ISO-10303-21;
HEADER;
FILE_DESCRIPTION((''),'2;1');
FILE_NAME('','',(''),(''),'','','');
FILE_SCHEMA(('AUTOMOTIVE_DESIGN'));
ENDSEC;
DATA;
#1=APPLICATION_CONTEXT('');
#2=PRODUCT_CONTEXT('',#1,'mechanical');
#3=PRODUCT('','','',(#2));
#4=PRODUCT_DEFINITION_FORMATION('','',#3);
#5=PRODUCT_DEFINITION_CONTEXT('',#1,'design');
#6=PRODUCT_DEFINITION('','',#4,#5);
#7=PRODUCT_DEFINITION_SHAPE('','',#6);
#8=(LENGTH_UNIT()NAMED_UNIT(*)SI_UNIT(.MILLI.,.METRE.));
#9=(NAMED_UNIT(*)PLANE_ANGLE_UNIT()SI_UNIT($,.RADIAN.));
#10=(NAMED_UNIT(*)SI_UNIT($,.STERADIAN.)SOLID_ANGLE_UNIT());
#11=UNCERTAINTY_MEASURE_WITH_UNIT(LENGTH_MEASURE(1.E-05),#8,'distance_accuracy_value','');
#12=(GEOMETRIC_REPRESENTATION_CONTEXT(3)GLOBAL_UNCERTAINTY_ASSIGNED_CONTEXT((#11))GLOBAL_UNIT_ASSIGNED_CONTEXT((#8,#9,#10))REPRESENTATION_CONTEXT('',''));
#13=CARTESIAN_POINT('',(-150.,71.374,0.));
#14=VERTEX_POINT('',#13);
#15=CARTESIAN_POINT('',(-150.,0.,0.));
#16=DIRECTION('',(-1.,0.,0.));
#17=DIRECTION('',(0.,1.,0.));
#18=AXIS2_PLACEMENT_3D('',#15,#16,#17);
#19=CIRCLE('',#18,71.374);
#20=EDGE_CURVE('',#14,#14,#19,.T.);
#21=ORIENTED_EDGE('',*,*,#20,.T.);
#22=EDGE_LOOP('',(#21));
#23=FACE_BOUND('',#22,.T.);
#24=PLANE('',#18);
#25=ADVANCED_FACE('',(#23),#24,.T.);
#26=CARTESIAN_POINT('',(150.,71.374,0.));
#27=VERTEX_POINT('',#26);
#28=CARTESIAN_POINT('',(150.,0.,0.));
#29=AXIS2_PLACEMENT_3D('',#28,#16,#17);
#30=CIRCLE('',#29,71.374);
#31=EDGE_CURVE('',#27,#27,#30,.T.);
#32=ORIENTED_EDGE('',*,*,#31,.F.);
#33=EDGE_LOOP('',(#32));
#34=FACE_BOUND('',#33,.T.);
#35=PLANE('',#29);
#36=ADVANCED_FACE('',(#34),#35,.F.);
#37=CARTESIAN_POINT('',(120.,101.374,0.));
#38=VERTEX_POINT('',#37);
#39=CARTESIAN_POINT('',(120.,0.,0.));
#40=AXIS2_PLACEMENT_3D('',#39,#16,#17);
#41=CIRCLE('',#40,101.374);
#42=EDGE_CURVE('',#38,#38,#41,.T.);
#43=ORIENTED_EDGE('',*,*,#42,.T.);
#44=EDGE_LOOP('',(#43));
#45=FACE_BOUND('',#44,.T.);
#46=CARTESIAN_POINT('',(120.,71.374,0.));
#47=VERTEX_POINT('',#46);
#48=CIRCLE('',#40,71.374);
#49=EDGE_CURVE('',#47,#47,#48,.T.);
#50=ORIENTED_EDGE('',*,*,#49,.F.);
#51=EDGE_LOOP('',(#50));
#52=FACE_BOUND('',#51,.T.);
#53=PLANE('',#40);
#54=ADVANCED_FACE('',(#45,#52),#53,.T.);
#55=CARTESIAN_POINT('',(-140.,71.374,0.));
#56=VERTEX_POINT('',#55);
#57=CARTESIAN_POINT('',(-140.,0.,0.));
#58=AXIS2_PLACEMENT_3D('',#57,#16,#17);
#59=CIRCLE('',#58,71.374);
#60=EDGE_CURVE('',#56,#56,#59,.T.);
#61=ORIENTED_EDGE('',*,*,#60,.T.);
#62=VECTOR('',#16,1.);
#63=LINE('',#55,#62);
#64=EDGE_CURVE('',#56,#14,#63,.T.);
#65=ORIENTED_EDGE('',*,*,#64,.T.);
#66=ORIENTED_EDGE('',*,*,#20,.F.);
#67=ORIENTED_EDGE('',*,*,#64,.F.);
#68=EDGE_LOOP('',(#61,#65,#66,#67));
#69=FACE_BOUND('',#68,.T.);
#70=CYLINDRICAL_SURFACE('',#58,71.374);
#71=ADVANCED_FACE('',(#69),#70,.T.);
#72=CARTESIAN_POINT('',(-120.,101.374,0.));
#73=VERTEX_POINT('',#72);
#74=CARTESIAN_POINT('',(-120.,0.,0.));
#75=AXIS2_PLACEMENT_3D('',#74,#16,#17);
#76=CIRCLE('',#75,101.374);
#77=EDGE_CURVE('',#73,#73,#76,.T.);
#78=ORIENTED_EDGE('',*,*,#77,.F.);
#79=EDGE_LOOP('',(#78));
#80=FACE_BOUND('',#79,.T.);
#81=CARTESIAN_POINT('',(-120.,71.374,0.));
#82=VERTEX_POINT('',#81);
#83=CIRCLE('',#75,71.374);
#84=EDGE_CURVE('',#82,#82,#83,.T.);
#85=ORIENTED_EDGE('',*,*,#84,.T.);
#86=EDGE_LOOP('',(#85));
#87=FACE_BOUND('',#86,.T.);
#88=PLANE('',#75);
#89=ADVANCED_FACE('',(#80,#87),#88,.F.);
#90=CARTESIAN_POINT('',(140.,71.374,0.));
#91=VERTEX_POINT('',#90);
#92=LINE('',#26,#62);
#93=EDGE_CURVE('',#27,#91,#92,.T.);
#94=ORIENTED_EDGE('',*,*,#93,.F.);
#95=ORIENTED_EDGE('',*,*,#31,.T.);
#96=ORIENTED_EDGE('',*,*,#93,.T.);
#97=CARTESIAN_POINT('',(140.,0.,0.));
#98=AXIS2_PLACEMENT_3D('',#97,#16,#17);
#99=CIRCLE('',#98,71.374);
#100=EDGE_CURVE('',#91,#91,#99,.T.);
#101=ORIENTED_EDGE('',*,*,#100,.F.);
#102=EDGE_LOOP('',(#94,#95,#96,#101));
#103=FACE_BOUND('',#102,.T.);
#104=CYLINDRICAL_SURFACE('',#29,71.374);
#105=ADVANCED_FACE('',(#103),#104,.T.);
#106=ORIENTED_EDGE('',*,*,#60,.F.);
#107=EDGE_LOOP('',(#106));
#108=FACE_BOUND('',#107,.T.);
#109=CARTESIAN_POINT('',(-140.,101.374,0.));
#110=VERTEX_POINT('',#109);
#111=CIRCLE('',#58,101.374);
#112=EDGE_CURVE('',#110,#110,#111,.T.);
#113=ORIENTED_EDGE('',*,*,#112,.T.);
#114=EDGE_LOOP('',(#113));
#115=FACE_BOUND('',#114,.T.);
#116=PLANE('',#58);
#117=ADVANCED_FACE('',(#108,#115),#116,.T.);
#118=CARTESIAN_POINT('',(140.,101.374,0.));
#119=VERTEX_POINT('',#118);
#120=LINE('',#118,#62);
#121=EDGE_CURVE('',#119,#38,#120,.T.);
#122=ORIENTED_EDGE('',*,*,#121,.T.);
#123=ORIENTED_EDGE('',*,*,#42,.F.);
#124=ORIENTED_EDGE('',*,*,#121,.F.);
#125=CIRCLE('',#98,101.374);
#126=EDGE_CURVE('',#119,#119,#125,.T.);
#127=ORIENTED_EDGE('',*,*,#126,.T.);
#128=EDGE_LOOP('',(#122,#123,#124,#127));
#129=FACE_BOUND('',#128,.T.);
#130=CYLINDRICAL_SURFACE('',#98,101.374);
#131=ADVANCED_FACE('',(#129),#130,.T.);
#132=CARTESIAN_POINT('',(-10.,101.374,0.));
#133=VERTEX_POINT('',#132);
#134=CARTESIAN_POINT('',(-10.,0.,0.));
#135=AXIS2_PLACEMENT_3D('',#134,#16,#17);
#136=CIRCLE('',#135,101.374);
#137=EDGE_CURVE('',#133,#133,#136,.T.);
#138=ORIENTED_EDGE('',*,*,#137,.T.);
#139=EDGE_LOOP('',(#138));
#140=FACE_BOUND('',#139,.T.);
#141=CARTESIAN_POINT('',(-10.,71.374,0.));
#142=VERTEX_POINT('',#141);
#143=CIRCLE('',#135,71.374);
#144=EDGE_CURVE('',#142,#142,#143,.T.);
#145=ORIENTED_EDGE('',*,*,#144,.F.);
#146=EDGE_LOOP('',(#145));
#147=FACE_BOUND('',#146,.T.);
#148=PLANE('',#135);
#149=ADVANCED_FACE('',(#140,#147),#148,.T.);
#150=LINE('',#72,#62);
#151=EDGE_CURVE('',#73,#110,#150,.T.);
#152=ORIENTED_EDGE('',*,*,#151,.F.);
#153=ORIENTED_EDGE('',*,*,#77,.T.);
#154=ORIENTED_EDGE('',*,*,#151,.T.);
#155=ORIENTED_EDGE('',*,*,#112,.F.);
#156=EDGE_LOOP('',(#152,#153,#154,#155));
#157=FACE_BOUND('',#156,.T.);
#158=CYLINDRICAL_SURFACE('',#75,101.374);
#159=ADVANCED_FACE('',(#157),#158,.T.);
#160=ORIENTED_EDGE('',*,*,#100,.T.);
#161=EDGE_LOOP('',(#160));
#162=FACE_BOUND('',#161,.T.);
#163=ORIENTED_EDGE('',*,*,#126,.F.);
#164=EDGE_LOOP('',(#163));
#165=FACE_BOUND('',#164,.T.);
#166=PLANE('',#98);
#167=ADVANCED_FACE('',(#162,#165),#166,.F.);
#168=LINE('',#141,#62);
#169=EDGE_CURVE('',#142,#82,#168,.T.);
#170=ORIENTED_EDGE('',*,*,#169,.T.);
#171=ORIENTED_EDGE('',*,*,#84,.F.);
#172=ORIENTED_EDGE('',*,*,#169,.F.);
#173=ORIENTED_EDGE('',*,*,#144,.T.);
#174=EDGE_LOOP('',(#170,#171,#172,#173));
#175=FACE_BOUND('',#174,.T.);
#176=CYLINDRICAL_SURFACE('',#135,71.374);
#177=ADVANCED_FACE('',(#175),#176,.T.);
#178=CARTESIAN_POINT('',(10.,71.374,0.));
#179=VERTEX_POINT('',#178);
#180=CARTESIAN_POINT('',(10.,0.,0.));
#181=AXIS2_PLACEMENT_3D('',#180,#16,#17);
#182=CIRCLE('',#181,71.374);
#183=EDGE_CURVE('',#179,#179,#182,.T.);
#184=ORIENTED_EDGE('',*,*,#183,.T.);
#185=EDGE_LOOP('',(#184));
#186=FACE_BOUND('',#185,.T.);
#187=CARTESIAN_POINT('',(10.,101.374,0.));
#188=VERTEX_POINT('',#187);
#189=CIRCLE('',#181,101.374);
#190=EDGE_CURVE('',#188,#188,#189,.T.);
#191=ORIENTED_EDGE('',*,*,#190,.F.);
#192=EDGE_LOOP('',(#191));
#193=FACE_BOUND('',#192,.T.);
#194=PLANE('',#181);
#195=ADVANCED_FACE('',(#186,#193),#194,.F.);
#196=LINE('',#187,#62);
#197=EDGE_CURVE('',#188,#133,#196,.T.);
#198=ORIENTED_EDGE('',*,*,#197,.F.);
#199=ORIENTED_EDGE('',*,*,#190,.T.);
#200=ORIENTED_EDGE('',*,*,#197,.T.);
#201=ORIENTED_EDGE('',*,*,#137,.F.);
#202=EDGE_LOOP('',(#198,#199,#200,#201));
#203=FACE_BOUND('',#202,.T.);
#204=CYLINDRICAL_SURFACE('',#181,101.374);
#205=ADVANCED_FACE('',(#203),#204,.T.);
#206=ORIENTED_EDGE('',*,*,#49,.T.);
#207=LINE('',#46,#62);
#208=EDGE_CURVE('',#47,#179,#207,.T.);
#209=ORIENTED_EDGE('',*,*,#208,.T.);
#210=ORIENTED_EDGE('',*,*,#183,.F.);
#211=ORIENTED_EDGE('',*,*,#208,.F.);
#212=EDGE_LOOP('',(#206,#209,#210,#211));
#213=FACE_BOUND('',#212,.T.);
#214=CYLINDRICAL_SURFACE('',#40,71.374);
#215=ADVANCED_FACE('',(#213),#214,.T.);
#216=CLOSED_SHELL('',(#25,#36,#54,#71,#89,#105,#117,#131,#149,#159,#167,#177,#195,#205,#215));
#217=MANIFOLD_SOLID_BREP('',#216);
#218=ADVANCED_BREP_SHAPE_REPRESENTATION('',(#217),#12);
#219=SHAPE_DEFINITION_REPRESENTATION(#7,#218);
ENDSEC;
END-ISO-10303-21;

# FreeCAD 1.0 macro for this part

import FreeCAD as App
import Part
import Sketcher

V = App.Vector

doc = App.newDocument("Part")
params = doc.addObject("Spreadsheet::Sheet", "Params")
for row, (alias, value) in enumerate([
    ("sketch1_width", "300 mm"),
    ("sketch1_width2", "10 mm"),
    ("sketch1_width3", "20 mm"),
    ("sketch1_height", "30 mm"),
    ("revolution_angle", "360 deg"),
], start=1):
    params.set(f"A{row}", alias)
    params.set(f"B{row}", "=" + value)
    params.setAlias(f"B{row}", alias)

body = doc.addObject("PartDesign::Body", "Body")

sketch1 = body.newObject("Sketcher::SketchObject", "Sketch")
sketch1.AttachmentSupport = (doc.getObject("XY_Plane"), [""])
sketch1.MapMode = "FlatFace"
sketch1.addGeometry([
    Part.LineSegment(V(-150, 71, 0), V(-150, 0, 0)),
    Part.LineSegment(V(-150, 0, 0), V(150, 0, 0)),
    Part.LineSegment(V(150, 0, 0), V(150, 71, 0)),
    Part.LineSegment(V(150, 71, 0), V(140, 71, 0)),
    Part.LineSegment(V(140, 71, 0), V(140, 101, 0)),
    Part.LineSegment(V(140, 101, 0), V(120, 101, 0)),
    Part.LineSegment(V(120, 101, 0), V(120, 71, 0)),
    Part.LineSegment(V(120, 71, 0), V(10, 71, 0)),
    Part.LineSegment(V(10, 71, 0), V(10, 101, 0)),
    Part.LineSegment(V(10, 101, 0), V(-10, 101, 0)),
    Part.LineSegment(V(-10, 101, 0), V(-10, 71, 0)),
    Part.LineSegment(V(-10, 71, 0), V(-120, 71, 0)),
    Part.LineSegment(V(-120, 71, 0), V(-120, 101, 0)),
    Part.LineSegment(V(-120, 101, 0), V(-140, 101, 0)),
    Part.LineSegment(V(-140, 101, 0), V(-140, 71, 0)),
    Part.LineSegment(V(-140, 71, 0), V(-150, 71, 0)),
], False)
sketch1.addConstraint([
    Sketcher.Constraint("Coincident", 0, 2, 1, 1),
    Sketcher.Constraint("Coincident", 1, 2, 2, 1),
    Sketcher.Constraint("Coincident", 2, 2, 3, 1),
    Sketcher.Constraint("Coincident", 3, 2, 4, 1),
    Sketcher.Constraint("Coincident", 4, 2, 5, 1),
    Sketcher.Constraint("Coincident", 5, 2, 6, 1),
    Sketcher.Constraint("Coincident", 6, 2, 7, 1),
    Sketcher.Constraint("Coincident", 7, 2, 8, 1),
    Sketcher.Constraint("Coincident", 8, 2, 9, 1),
    Sketcher.Constraint("Coincident", 9, 2, 10, 1),
    Sketcher.Constraint("Coincident", 10, 2, 11, 1),
    Sketcher.Constraint("Coincident", 11, 2, 12, 1),
    Sketcher.Constraint("Coincident", 12, 2, 13, 1),
    Sketcher.Constraint("Coincident", 13, 2, 14, 1),
    Sketcher.Constraint("Coincident", 14, 2, 15, 1),
    Sketcher.Constraint("Coincident", 15, 2, 0, 1),
    Sketcher.Constraint("Vertical", 0),
    Sketcher.Constraint("Horizontal", 1),
    Sketcher.Constraint("Vertical", 2),
    Sketcher.Constraint("Horizontal", 3),
    Sketcher.Constraint("Vertical", 4),
    Sketcher.Constraint("Horizontal", 5),
    Sketcher.Constraint("Vertical", 6),
    Sketcher.Constraint("Horizontal", 7),
    Sketcher.Constraint("Vertical", 8),
    Sketcher.Constraint("Horizontal", 9),
    Sketcher.Constraint("Vertical", 10),
    Sketcher.Constraint("Horizontal", 11),
    Sketcher.Constraint("Vertical", 12),
    Sketcher.Constraint("Horizontal", 13),
    Sketcher.Constraint("Vertical", 14),
    Sketcher.Constraint("Horizontal", 15),
    Sketcher.Constraint("Symmetric", 0, 2, 1, 2, -1, 1),
    Sketcher.Constraint("Symmetric", 7, 2, 10, 2, -2),
    Sketcher.Constraint("Symmetric", 5, 2, 12, 2, -2),
    Sketcher.Constraint("Symmetric", 3, 2, 14, 2, -2),
    Sketcher.Constraint("Horizontal", 3, 2, 6, 2),
    Sketcher.Constraint("Horizontal", 5, 2, 8, 2),
    Sketcher.Constraint("Equal", 5, 9),
    Sketcher.Constraint("DistanceX", 1, 1, 1, 2, 300.0),
    Sketcher.Constraint("DistanceX", 3, 2, 3, 1, 10.0),
    Sketcher.Constraint("DistanceX", 5, 2, 5, 1, 20.0),
    Sketcher.Constraint("DistanceY", 4, 1, 4, 2, 30.0),
    Sketcher.Constraint("DistanceY", 0, 2, 0, 1, 71.374),
])
sketch1.setExpression("Constraints[39]", "Params.sketch1_width")
sketch1.setExpression("Constraints[40]", "Params.sketch1_width2")
sketch1.setExpression("Constraints[41]", "Params.sketch1_width3")
sketch1.setExpression("Constraints[42]", "Params.sketch1_height")
revolution = body.newObject("PartDesign::Revolution", "Revolution")
revolution.Profile = sketch1
revolution.ReferenceAxis = (sketch1, ["H_Axis"])
revolution.setExpression("Angle", "Params.revolution_angle")

doc.recompute()
